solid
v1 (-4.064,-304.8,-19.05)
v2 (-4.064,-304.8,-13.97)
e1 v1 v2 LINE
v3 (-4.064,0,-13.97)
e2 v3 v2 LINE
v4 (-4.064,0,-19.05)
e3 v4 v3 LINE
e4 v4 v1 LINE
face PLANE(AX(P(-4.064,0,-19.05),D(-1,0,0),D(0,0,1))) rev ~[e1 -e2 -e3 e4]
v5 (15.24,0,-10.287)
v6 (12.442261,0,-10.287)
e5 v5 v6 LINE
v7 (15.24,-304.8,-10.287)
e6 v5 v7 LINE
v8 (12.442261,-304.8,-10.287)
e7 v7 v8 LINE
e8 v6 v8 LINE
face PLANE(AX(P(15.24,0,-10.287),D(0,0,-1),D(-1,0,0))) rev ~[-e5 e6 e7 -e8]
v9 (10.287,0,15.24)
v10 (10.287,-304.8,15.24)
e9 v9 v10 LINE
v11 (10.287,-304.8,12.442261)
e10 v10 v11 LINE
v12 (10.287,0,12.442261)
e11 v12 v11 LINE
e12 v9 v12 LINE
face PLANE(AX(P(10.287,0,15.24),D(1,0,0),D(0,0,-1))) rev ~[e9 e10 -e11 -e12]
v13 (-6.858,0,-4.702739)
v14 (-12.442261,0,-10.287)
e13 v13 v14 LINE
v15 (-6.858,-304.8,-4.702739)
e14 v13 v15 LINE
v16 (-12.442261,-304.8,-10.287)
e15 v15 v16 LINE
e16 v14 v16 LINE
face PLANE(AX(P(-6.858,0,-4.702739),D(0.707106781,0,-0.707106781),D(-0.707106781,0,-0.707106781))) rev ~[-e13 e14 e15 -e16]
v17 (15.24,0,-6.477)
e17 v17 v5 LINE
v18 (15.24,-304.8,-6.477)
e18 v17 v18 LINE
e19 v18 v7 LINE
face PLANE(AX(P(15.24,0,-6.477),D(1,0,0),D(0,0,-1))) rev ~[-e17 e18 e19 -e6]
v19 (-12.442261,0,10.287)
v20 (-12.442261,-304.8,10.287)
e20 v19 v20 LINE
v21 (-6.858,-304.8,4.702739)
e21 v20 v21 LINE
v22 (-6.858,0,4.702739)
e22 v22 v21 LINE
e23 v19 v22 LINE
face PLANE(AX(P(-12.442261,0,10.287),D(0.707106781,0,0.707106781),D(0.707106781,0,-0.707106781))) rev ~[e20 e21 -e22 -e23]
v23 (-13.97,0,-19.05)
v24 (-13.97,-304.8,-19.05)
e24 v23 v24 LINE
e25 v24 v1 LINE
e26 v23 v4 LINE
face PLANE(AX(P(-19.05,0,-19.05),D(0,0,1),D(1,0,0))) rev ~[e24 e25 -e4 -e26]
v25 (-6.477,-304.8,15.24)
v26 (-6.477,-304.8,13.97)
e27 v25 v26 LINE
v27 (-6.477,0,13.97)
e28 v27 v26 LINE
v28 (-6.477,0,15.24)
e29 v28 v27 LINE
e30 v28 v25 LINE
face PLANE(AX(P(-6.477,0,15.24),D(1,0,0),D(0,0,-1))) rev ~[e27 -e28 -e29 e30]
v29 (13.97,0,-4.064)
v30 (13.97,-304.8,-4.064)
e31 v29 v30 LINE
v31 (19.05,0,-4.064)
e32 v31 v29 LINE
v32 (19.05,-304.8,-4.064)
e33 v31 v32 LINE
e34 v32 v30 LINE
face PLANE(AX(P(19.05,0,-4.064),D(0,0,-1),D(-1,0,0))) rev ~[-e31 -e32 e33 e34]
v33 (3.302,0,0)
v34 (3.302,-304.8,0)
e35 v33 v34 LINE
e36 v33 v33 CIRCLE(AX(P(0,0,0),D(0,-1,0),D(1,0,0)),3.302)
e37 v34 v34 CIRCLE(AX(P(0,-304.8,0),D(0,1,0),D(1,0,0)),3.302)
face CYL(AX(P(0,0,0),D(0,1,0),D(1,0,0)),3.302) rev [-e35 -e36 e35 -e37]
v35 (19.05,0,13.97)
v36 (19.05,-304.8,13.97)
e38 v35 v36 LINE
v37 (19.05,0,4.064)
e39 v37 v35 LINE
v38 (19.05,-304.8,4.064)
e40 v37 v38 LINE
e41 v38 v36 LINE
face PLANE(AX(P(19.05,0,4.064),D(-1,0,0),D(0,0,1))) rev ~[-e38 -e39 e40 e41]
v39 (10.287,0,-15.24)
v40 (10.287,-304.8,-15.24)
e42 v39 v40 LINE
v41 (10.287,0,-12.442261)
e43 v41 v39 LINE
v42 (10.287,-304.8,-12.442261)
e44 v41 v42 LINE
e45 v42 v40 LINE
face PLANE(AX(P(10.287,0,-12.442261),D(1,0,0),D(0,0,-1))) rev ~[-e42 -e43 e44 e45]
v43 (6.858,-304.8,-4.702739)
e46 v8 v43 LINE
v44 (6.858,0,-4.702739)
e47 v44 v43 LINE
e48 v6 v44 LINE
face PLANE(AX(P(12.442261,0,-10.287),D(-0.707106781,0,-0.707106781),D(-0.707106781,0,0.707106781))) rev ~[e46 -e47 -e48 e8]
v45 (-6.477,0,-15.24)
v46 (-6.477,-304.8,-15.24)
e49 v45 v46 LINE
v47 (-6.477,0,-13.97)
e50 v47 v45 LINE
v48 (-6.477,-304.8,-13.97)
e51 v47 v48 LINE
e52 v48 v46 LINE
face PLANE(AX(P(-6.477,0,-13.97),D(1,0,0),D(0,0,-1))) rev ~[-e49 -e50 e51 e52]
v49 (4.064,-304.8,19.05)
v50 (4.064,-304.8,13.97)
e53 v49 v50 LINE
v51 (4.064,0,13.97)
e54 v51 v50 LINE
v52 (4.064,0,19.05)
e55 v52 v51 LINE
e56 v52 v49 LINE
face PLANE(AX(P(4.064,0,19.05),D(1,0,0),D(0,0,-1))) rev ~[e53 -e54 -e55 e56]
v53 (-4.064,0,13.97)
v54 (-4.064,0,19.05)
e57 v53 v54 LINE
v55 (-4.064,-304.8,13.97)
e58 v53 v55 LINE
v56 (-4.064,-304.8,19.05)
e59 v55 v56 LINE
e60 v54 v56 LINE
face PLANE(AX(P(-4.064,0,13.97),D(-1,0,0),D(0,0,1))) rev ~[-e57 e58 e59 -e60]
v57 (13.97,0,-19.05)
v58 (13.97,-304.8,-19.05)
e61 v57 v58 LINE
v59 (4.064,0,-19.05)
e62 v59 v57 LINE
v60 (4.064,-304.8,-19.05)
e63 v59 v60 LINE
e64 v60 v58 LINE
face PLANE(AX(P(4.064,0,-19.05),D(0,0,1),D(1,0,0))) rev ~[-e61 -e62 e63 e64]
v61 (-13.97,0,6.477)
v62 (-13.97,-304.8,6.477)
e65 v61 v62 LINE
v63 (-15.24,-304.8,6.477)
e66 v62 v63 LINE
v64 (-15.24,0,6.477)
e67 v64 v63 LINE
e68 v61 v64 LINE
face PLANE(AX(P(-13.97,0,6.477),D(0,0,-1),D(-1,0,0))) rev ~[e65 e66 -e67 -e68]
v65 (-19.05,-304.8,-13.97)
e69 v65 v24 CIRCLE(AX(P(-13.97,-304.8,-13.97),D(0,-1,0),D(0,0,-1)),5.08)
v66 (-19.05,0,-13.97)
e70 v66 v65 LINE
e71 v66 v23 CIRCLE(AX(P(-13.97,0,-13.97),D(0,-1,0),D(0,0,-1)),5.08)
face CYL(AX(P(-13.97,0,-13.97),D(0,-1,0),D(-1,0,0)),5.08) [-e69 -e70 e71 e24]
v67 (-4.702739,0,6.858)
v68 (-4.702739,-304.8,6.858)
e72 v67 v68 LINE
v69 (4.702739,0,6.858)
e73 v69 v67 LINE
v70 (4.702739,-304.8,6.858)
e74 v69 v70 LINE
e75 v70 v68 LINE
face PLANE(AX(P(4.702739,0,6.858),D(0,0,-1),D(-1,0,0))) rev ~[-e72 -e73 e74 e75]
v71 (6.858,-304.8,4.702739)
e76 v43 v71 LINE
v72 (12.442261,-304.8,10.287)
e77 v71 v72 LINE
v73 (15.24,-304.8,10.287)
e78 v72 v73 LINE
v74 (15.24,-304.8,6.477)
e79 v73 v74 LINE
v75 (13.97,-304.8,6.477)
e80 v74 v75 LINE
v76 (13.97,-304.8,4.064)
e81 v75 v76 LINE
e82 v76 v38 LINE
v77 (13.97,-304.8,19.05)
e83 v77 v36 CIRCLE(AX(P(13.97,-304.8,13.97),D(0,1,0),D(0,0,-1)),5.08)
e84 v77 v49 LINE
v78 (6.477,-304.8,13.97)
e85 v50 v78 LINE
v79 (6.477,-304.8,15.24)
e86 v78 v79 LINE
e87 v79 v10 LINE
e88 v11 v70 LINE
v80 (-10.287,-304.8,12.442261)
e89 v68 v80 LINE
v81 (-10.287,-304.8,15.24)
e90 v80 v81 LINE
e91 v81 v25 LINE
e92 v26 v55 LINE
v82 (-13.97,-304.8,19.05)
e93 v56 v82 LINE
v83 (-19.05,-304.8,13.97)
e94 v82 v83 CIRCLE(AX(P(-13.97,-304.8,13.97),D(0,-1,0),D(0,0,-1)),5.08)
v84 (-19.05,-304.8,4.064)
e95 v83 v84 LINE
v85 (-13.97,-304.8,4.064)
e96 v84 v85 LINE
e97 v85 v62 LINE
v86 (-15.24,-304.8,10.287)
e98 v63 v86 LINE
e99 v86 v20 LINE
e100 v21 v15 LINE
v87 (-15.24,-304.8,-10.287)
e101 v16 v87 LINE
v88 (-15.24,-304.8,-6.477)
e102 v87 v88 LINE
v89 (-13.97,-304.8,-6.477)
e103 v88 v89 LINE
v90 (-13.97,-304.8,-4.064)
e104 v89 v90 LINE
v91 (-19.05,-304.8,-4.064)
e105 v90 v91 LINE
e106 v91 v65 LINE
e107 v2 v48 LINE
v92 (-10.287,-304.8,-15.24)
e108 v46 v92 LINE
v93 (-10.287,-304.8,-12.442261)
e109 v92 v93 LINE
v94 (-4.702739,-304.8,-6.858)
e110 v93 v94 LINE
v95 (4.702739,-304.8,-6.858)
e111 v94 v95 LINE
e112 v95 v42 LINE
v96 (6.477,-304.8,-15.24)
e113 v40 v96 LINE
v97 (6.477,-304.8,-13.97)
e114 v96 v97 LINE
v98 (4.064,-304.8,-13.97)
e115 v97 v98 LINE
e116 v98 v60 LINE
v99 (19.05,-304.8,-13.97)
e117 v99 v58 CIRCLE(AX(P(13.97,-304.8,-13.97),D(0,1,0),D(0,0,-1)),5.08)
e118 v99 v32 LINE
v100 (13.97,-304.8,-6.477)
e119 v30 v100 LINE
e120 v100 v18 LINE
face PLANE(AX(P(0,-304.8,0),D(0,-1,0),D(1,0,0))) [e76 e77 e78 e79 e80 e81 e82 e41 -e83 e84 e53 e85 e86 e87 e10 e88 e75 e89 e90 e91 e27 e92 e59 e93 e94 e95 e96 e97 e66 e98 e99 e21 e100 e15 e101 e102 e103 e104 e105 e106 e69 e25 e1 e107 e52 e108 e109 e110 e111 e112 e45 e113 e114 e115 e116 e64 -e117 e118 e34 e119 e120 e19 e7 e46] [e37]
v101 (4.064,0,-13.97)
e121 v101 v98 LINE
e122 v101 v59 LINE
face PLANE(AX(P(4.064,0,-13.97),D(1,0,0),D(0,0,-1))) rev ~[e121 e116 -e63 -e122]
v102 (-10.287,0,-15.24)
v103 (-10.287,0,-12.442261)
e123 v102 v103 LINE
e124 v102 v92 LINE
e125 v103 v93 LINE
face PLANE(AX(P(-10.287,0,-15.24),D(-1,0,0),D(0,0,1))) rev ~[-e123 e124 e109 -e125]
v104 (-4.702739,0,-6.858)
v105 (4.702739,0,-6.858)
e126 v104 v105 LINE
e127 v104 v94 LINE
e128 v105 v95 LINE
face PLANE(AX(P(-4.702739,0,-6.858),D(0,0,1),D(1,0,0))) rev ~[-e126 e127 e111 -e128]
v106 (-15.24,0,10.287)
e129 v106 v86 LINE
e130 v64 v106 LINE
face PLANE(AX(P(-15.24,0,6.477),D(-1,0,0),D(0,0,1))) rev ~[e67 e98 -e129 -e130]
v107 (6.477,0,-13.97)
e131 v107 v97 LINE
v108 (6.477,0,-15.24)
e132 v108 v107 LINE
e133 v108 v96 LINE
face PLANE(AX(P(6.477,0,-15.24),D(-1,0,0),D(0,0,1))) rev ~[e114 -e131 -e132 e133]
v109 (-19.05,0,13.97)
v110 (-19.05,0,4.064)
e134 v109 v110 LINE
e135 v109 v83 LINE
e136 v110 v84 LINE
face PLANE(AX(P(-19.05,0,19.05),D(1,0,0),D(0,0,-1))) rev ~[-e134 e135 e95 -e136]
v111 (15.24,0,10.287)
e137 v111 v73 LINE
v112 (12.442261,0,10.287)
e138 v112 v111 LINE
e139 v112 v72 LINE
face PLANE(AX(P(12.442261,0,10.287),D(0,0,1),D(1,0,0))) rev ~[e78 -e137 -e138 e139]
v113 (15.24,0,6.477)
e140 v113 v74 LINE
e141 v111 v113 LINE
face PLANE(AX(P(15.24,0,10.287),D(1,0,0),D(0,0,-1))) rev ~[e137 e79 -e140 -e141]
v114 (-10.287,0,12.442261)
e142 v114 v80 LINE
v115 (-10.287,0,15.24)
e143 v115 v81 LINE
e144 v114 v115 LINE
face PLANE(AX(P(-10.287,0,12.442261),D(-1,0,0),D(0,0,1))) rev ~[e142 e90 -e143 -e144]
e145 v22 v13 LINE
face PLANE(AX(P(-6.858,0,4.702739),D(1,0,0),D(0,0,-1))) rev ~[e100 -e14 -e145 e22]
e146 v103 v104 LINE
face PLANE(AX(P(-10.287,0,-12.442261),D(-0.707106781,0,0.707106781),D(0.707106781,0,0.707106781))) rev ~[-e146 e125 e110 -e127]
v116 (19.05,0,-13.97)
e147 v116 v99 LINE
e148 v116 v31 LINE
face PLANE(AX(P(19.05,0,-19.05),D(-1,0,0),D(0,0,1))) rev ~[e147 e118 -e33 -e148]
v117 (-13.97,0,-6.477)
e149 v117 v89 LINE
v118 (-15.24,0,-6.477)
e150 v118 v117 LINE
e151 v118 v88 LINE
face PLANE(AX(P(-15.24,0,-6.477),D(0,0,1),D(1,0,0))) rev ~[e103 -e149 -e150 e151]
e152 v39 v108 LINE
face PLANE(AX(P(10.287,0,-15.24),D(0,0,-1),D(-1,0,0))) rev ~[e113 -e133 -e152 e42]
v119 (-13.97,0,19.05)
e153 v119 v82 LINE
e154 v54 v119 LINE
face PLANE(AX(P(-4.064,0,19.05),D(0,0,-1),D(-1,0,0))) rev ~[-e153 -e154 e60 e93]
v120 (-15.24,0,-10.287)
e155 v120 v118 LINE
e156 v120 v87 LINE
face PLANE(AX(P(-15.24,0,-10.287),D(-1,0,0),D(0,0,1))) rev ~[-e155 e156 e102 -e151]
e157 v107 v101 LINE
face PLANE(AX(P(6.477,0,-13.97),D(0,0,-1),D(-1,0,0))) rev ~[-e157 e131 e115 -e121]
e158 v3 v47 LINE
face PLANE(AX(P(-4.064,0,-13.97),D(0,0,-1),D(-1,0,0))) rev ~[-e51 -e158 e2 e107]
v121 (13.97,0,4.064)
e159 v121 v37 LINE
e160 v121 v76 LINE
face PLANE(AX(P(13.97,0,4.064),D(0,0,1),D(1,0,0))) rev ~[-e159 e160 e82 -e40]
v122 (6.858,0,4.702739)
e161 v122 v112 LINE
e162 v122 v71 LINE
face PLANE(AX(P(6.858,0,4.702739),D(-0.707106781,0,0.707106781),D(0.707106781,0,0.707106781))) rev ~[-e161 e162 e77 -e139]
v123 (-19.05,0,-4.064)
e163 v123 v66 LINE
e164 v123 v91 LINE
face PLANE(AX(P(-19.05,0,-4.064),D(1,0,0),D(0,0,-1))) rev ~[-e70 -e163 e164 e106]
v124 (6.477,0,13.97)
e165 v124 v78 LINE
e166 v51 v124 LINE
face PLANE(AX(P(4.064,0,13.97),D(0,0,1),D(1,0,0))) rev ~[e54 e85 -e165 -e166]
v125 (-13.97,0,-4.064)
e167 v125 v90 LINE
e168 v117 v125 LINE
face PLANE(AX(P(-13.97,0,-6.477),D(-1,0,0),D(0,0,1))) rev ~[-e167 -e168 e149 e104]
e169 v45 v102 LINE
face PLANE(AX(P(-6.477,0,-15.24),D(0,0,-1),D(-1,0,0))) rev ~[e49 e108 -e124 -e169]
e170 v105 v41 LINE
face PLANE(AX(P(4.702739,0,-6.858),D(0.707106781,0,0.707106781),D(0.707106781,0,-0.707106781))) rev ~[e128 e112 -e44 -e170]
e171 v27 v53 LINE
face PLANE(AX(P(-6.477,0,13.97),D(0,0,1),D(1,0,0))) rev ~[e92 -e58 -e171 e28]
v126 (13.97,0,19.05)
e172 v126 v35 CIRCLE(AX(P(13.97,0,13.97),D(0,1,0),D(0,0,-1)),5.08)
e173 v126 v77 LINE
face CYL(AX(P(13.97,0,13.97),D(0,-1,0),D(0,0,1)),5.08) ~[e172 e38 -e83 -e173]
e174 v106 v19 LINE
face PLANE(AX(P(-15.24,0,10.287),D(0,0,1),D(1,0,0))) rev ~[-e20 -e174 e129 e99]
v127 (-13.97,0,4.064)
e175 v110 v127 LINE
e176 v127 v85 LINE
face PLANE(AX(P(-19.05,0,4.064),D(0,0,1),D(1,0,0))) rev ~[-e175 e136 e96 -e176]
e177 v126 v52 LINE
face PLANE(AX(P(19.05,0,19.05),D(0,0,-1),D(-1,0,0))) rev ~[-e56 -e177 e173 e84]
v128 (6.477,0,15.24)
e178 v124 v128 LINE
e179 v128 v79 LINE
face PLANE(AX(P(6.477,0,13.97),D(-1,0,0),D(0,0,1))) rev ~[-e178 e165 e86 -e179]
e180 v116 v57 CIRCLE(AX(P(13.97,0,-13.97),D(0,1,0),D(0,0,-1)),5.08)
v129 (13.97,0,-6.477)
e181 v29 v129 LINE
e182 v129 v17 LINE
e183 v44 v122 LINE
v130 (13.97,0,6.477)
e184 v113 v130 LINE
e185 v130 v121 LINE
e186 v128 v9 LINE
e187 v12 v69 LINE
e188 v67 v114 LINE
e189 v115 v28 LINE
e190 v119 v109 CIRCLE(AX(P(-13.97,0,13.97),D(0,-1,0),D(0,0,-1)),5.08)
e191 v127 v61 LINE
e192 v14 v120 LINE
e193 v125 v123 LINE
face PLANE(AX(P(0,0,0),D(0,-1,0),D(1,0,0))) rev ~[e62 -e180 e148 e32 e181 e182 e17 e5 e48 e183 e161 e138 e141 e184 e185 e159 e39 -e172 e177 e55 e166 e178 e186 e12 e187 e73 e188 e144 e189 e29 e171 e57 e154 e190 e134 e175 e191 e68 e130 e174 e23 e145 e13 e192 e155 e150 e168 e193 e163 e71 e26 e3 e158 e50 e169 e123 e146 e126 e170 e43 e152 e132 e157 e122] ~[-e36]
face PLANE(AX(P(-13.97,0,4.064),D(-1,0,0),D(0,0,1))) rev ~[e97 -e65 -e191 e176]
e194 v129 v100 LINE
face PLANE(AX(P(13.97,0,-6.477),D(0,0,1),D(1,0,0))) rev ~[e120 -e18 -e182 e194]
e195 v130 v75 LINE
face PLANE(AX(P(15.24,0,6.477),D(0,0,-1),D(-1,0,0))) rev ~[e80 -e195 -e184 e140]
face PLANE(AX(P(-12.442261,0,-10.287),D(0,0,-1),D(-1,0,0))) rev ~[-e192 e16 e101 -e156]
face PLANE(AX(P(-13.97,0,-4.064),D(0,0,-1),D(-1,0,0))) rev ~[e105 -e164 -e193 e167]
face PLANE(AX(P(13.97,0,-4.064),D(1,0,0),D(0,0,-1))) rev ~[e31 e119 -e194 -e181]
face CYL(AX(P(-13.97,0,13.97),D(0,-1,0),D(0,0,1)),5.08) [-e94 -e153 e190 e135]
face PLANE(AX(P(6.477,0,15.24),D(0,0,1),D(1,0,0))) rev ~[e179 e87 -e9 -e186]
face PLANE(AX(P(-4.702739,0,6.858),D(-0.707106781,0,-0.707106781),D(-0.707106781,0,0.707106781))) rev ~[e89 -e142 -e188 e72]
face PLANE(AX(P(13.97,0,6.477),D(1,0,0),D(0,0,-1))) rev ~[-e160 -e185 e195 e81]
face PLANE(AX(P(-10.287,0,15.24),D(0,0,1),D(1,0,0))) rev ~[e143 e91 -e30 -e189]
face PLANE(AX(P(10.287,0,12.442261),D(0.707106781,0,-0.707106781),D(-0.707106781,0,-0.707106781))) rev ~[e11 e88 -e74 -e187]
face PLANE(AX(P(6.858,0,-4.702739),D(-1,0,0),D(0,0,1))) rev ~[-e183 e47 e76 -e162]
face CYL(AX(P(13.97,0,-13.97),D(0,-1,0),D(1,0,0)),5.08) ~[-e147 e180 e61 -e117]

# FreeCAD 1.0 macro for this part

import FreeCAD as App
import Part
import Sketcher

V = App.Vector
Q = App.Units.Quantity


def edges_at(feature, points):
    """Names of the edges that pass closest to the given points."""
    edges = feature.Shape.Edges
    near = lambda p: min(range(len(edges)), key=lambda i: edges[i].distToShape(Part.Vertex(*p))[0])
    return sorted({f"Edge{near(p) + 1}" for p in points})


def add_polygon(sketch, points):
    """Adds a closed chain of lines whose ends are joined by coincident constraints."""
    first, n = sketch.GeometryCount, len(points)
    for a, b in zip(points, points[1:] + points[:1]):
        sketch.addGeometry(Part.LineSegment(App.Vector(*a, 0), App.Vector(*b, 0)), False)
    for i in range(n):
        sketch.addConstraint(Sketcher.Constraint("Coincident", first + i, 2, first + (i + 1) % n, 1))

doc = App.newDocument("Part")
body = doc.addObject("PartDesign::Body", "Body")

# Sketch on XZ plane
sketch1 = body.newObject("Sketcher::SketchObject", "Sketch")
sketch1.AttachmentSupport = (doc.getObject("XZ_Plane"), [""])
sketch1.MapMode = "FlatFace"
add_polygon(sketch1, [(19.05, 19.05), (4.064, 19.05), (4.064, 13.97), (6.477, 13.97), (6.477, 15.24), (10.287, 15.24), (10.287, 12.442261), (4.702739, 6.858), (-4.702739, 6.858), (-10.287, 12.442261), (-10.287, 15.24), (-6.477, 15.24), (-6.477, 13.97), (-4.064, 13.97), (-4.064, 19.05), (-19.05, 19.05), (-19.05, 4.064), (-13.97, 4.064), (-13.97, 6.477), (-15.24, 6.477), (-15.24, 10.287), (-12.442261, 10.287), (-6.858, 4.702739), (-6.858, -4.702739), (-12.442261, -10.287), (-15.24, -10.287), (-15.24, -6.477), (-13.97, -6.477), (-13.97, -4.064), (-19.05, -4.064), (-19.05, -19.05), (-4.064, -19.05), (-4.064, -13.97), (-6.477, -13.97), (-6.477, -15.24), (-10.287, -15.24), (-10.287, -12.442261), (-4.702739, -6.858), (4.702739, -6.858), (10.287, -12.442261), (10.287, -15.24), (6.477, -15.24), (6.477, -13.97), (4.064, -13.97), (4.064, -19.05), (19.05, -19.05), (19.05, -4.064), (13.97, -4.064), (13.97, -6.477), (15.24, -6.477), (15.24, -10.287), (12.442261, -10.287), (6.858, -4.702739), (6.858, 4.702739), (12.442261, 10.287), (15.24, 10.287), (15.24, 6.477), (13.97, 6.477), (13.97, 4.064), (19.05, 4.064)])  # lines 0-59
sketch1.addConstraint([
    Sketcher.Constraint("Horizontal", 0),
    Sketcher.Constraint("Vertical", 1),
    Sketcher.Constraint("Horizontal", 2),
    Sketcher.Constraint("Vertical", 3),
    Sketcher.Constraint("Horizontal", 4),
    Sketcher.Constraint("Vertical", 5),
    Sketcher.Constraint("Horizontal", 7),
    Sketcher.Constraint("Vertical", 9),
    Sketcher.Constraint("Horizontal", 10),
    Sketcher.Constraint("Vertical", 11),
    Sketcher.Constraint("Horizontal", 12),
    Sketcher.Constraint("Vertical", 13),
    Sketcher.Constraint("Horizontal", 14),
    Sketcher.Constraint("Vertical", 15),
    Sketcher.Constraint("Horizontal", 16),
    Sketcher.Constraint("Vertical", 17),
    Sketcher.Constraint("Horizontal", 18),
    Sketcher.Constraint("Vertical", 19),
    Sketcher.Constraint("Horizontal", 20),
    Sketcher.Constraint("Vertical", 22),
    Sketcher.Constraint("Horizontal", 24),
    Sketcher.Constraint("Vertical", 25),
    Sketcher.Constraint("Horizontal", 26),
    Sketcher.Constraint("Vertical", 27),
    Sketcher.Constraint("Horizontal", 28),
    Sketcher.Constraint("Vertical", 29),
    Sketcher.Constraint("Horizontal", 30),
    Sketcher.Constraint("Vertical", 31),
    Sketcher.Constraint("Horizontal", 32),
    Sketcher.Constraint("Vertical", 33),
    Sketcher.Constraint("Horizontal", 34),
    Sketcher.Constraint("Vertical", 35),
    Sketcher.Constraint("Horizontal", 37),
    Sketcher.Constraint("Vertical", 39),
    Sketcher.Constraint("Horizontal", 40),
    Sketcher.Constraint("Vertical", 41),
    Sketcher.Constraint("Horizontal", 42),
    Sketcher.Constraint("Vertical", 43),
    Sketcher.Constraint("Horizontal", 44),
    Sketcher.Constraint("Vertical", 45),
    Sketcher.Constraint("Horizontal", 46),
    Sketcher.Constraint("Vertical", 47),
    Sketcher.Constraint("Horizontal", 48),
    Sketcher.Constraint("Vertical", 49),
    Sketcher.Constraint("Horizontal", 50),
    Sketcher.Constraint("Vertical", 52),
    Sketcher.Constraint("Horizontal", 54),
    Sketcher.Constraint("Vertical", 55),
    Sketcher.Constraint("Horizontal", 56),
    Sketcher.Constraint("Vertical", 57),
    Sketcher.Constraint("Horizontal", 58),
    Sketcher.Constraint("Vertical", 59),
    Sketcher.Constraint("Symmetric", 0, 2, 30, 2, -1, 1),
    Sketcher.Constraint("Symmetric", 2, 2, 32, 2, -1, 1),
    Sketcher.Constraint("Symmetric", 4, 2, 34, 2, -1, 1),
    Sketcher.Constraint("Symmetric", 6, 2, 36, 2, -1, 1),
    Sketcher.Constraint("Symmetric", 8, 2, 38, 2, -1, 1),
    Sketcher.Constraint("Symmetric", 10, 2, 40, 2, -1, 1),
    Sketcher.Constraint("Symmetric", 12, 2, 42, 2, -1, 1),
    Sketcher.Constraint("Symmetric", 14, 2, 44, 2, -1, 1),
    Sketcher.Constraint("Symmetric", 16, 2, 46, 2, -1, 1),
    Sketcher.Constraint("Symmetric", 18, 2, 48, 2, -1, 1),
    Sketcher.Constraint("Symmetric", 20, 2, 50, 2, -1, 1),
    Sketcher.Constraint("Symmetric", 21, 2, 51, 2, -1, 1),
    Sketcher.Constraint("Symmetric", 23, 2, 53, 2, -1, 1),
    Sketcher.Constraint("Symmetric", 25, 2, 55, 2, -1, 1),
    Sketcher.Constraint("Symmetric", 27, 2, 57, 2, -1, 1),
    Sketcher.Constraint("Symmetric", 5, 2, 8, 2, -2),
    Sketcher.Constraint("Symmetric", 3, 2, 10, 2, -2),
    Sketcher.Constraint("Symmetric", 1, 2, 12, 2, -2),
    Sketcher.Constraint("Symmetric", 29, 2, 44, 2, -2),
    Sketcher.Constraint("Symmetric", 27, 2, 46, 2, -2),
    Sketcher.Constraint("Symmetric", 25, 2, 48, 2, -2),
    Sketcher.Constraint("Symmetric", 23, 2, 50, 2, -2),
    Sketcher.Constraint("Perpendicular", 6, 8),
    Sketcher.Constraint("Parallel", 8, 21),
    Sketcher.Constraint("Perpendicular", 21, 23),
    Sketcher.Constraint("Parallel", 23, 36),
    Sketcher.Constraint("Perpendicular", 36, 38),
    Sketcher.Constraint("Perpendicular", 51, 53),
    Sketcher.Constraint("Horizontal", 22, 2, 51, 2),
    Sketcher.Constraint("Vertical", 45, 2, 58, 2),
    Sketcher.Constraint("Equal", 58, 1),
    Sketcher.Constraint("Equal", 56, 3),
    Sketcher.Constraint("Equal", 54, 5),
    Sketcher.Constraint("Equal", 44, 15),
    Sketcher.Constraint("Equal", 42, 17),
    Sketcher.Constraint("Equal", 40, 19),
    Sketcher.Constraint("Equal", 37, 22),
    Sketcher.Constraint("Equal", 8, 21),
    Sketcher.Constraint("DistanceX", 16, 1, 16, 2, Q("0.2 in")),
    Sketcher.Constraint("DistanceX", 0, 2, 0, 1, Q("0.59 in")),
    Sketcher.Constraint("DistanceX", 4, 1, 4, 2, Q("0.15 in")),
    Sketcher.Constraint("DistanceX", 18, 2, 18, 1, Q("0.05 in")),
    Sketcher.Constraint("DistanceY", -1, 1, 3, 2, Q("0.6 in")),
    Sketcher.Constraint("DistanceX", 2, 1, 2, 2, Q("0.095 in")),
    Sketcher.Constraint("DistanceY", -1, 1, 6, 2, Q("0.27 in")),
    Sketcher.Constraint("DistanceX", 20, 1, 20, 2, 2.797739),
])
pad1 = body.newObject("PartDesign::Pad", "Pad")
pad1.Profile = sketch1
pad1.Length = Q("12 in")

# Sketch on XZ plane
sketch2 = body.newObject("Sketcher::SketchObject", "Sketch001")
sketch2.AttachmentSupport = (doc.getObject("XZ_Plane"), [""])
sketch2.MapMode = "FlatFace"
sketch2.addGeometry(Part.Circle(V(0, 0, 0), V(0, 0, 1), 3.302), False)
sketch2.addConstraint([
    Sketcher.Constraint("Coincident", 0, 3, -1, 1),
    Sketcher.Constraint("Diameter", 0, Q("0.26 in")),
])
pocket1 = body.newObject("PartDesign::Pocket", "Pocket")
pocket1.Profile = sketch2
pocket1.Type = "ThroughAll"
pocket1.Reversed = True
doc.recompute()

fillet = body.newObject("PartDesign::Fillet", "Fillet")
fillet.Base = (pocket1, edges_at(pocket1, [
    (19.05, -152.4, 19.05),
    (-19.05, -152.4, 19.05),
    (19.05, -152.4, -19.05),
    (-19.05, -152.4, -19.05),
]))
fillet.Radius = Q("0.2 in")

doc.recompute()
